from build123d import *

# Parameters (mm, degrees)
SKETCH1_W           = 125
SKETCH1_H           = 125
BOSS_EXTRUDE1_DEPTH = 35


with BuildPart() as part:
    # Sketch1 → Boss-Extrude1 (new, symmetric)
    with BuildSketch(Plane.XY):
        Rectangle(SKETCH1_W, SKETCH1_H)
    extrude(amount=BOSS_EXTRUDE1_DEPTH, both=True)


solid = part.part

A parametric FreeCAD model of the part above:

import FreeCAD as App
import Part
import Sketcher

V = App.Vector
Q = App.Units.Quantity

doc = App.newDocument("Part")
body = doc.addObject("PartDesign::Body", "Body")

# Sketch on XY plane
sketch1 = doc.addObject("Sketcher::SketchObject", "Sketch")
body.addObject(sketch1)
sketch1.AttachmentSupport = (doc.XY_Plane, [""])
sketch1.MapMode = "FlatFace"
sketch1.addGeometry(Part.LineSegment(V(-62, 62, 0), V(-62, -62, 0)), False)
sketch1.addGeometry(Part.LineSegment(V(-62, -62, 0), V(62, -62, 0)), False)
sketch1.addGeometry(Part.LineSegment(V(62, -62, 0), V(62, 62, 0)), False)
sketch1.addGeometry(Part.LineSegment(V(62, 62, 0), V(-62, 62, 0)), False)
sketch1.addConstraint(Sketcher.Constraint("Coincident", 0, 2, 1, 1))
sketch1.addConstraint(Sketcher.Constraint("Coincident", 1, 2, 2, 1))
sketch1.addConstraint(Sketcher.Constraint("Coincident", 2, 2, 3, 1))
sketch1.addConstraint(Sketcher.Constraint("Coincident", 3, 2, 0, 1))
sketch1.addConstraint(Sketcher.Constraint("Vertical", 0))
sketch1.addConstraint(Sketcher.Constraint("Horizontal", 1))
sketch1.addConstraint(Sketcher.Constraint("Vertical", 2))
sketch1.addConstraint(Sketcher.Constraint("Horizontal", 3))
sketch1.addConstraint(Sketcher.Constraint("Symmetric", 0, 2, 2, 2, -1, 1))
sketch1.addConstraint(Sketcher.Constraint("Equal", 3, 0))
sketch1.addConstraint(Sketcher.Constraint("DistanceX", 1, 1, 1, 2, Q("125 mm")))
pad1 = doc.addObject("PartDesign::Pad", "Pad")
body.addObject(pad1)
pad1.Profile = sketch1
pad1.Length = 70
pad1.Midplane = True

doc.recompute()
